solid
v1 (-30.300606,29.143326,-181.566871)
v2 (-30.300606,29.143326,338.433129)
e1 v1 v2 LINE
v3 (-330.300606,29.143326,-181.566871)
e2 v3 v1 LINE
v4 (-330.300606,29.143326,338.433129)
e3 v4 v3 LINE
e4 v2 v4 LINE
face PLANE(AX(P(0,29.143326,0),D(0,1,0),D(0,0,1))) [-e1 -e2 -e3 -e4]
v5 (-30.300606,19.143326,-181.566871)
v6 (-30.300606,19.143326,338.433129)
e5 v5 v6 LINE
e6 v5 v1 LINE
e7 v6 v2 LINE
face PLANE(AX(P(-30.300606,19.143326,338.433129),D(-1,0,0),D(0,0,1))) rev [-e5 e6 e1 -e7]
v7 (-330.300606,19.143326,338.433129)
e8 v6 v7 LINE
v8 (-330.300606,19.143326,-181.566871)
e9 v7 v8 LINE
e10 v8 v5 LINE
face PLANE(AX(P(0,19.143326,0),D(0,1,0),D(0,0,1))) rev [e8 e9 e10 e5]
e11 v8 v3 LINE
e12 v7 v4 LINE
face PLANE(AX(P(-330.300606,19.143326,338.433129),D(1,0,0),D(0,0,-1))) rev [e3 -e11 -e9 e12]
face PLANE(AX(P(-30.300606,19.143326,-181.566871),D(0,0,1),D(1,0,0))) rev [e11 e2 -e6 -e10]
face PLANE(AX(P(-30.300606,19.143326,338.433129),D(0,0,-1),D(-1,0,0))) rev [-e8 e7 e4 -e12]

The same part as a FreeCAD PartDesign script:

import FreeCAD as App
import Part
import Sketcher
from FreeCAD import Vector
Q = App.Units.Quantity


def add_polygon(sketch, points):
    """Adds a closed chain of lines whose ends are joined by coincident constraints."""
    first, n = sketch.GeometryCount, len(points)
    for a, b in zip(points, points[1:] + points[:1]):
        sketch.addGeometry(Part.LineSegment(App.Vector(*a, 0), App.Vector(*b, 0)), False)
    for i in range(n):
        sketch.addConstraint(Sketcher.Constraint("Coincident", first + i, 2, first + (i + 1) % n, 1))

doc = App.newDocument("Part")
body = doc.addObject("PartDesign::Body", "Body")

sketch1 = body.newObject("Sketcher::SketchObject", "Sketch")
sketch1.AttachmentSupport = (doc.getObject("XZ_Plane"), [""])
sketch1.MapMode = "FlatFace"
sketch1.AttachmentOffset = App.Placement(Vector(0, 0, -29.143326), App.Rotation())
add_polygon(sketch1, [(-330, 338), (-330, -182), (-30, -182), (-30, 338)])
sketch1.addConstraint(Sketcher.Constraint("Vertical", 0))
sketch1.addConstraint(Sketcher.Constraint("Horizontal", 1))
sketch1.addConstraint(Sketcher.Constraint("Vertical", 2))
sketch1.addConstraint(Sketcher.Constraint("Horizontal", 3))
sketch1.addConstraint(Sketcher.Constraint("DistanceX", 1, 1, 1, 2, Q("300 mm")))
sketch1.addConstraint(Sketcher.Constraint("DistanceY", 0, 2, 0, 1, Q("520 mm")))
sketch1.addConstraint(Sketcher.Constraint("DistanceY", 0, 2, -1, 1, Q("181.566871 mm")))
sketch1.addConstraint(Sketcher.Constraint("DistanceX", 0, 2, -1, 1, Q("330.300606 mm")))
pad1 = body.newObject("PartDesign::Pad", "Pad")
pad1.Profile = sketch1
pad1.Length = 10

doc.recompute()
